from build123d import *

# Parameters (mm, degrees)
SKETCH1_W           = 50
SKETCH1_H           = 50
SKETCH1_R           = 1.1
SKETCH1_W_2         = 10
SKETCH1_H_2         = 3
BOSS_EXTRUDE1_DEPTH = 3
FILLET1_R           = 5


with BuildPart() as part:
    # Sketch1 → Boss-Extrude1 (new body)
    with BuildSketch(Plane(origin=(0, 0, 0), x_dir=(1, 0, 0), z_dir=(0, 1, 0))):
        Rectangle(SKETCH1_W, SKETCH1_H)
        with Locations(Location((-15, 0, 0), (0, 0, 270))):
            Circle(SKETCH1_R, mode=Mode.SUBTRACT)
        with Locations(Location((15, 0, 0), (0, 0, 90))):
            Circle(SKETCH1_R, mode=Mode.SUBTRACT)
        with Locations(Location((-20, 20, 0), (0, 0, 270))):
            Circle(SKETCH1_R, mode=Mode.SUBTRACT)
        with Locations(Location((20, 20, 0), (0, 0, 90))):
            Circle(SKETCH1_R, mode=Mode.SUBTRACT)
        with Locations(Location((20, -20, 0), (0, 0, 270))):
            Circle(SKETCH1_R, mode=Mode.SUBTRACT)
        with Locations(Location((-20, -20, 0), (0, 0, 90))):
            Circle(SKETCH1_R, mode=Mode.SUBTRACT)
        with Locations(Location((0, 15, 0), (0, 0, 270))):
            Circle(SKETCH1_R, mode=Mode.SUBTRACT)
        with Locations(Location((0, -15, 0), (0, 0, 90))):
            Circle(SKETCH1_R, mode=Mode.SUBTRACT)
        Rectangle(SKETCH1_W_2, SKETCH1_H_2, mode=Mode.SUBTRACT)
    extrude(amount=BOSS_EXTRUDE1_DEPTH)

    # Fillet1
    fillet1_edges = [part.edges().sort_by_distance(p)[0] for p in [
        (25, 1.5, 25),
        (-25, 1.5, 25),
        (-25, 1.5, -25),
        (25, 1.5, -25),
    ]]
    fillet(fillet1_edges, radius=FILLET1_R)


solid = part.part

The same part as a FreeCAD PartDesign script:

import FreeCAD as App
import Part
import Sketcher
from FreeCAD import Vector
Q = App.Units.Quantity


def edges_at(feature, points):
    """Names of the edges that pass closest to the given points."""
    edges = feature.Shape.Edges
    near = lambda p: min(range(len(edges)), key=lambda i: edges[i].distToShape(Part.Vertex(*p))[0])
    return sorted({f"Edge{near(p) + 1}" for p in points})

doc = App.newDocument("Part")
body = doc.addObject("PartDesign::Body", "Body")

# Sketch on XZ plane
sketch1 = doc.addObject("Sketcher::SketchObject", "Sketch")
body.addObject(sketch1)
sketch1.AttachmentSupport = (doc.XZ_Plane, [""])
sketch1.MapMode = "FlatFace"
sketch1.addGeometry([
    Part.LineSegment(Vector(-25, -25, 0), Vector(-25, 25, 0)),  # 0
    Part.LineSegment(Vector(-25, 25, 0), Vector(25, 25, 0)),  # 1
    Part.LineSegment(Vector(25, 25, 0), Vector(25, -25, 0)),  # 2
    Part.LineSegment(Vector(25, -25, 0), Vector(-25, -25, 0)),  # 3
    Part.Circle(Vector(-20, 20, 0), Vector(0, 0, 1), 1.1),  # 4
    Part.Circle(Vector(0, 15, 0), Vector(0, 0, 1), 1.1),  # 5
    Part.Circle(Vector(20, 20, 0), Vector(0, 0, 1), 1.1),  # 6
    Part.Circle(Vector(-15, 0, 0), Vector(0, 0, 1), 1.1),  # 7
    Part.Circle(Vector(-20, -20, 0), Vector(0, 0, 1), 1.1),  # 8
    Part.LineSegment(Vector(5, 1.5, 0), Vector(-5, 1.5, 0)),  # 9
    Part.LineSegment(Vector(-5, 1.5, 0), Vector(-5, -1.5, 0)),  # 10
    Part.LineSegment(Vector(-5, -1.5, 0), Vector(5, -1.5, 0)),  # 11
    Part.LineSegment(Vector(5, -1.5, 0), Vector(5, 1.5, 0)),  # 12
    Part.Circle(Vector(15, 0, 0), Vector(0, 0, 1), 1.1),  # 13
    Part.Circle(Vector(0, -15, 0), Vector(0, 0, 1), 1.1),  # 14
    Part.Circle(Vector(20, -20, 0), Vector(0, 0, 1), 1.1),  # 15
], False)
sketch1.addConstraint([
    Sketcher.Constraint("Coincident", 0, 2, 1, 1),
    Sketcher.Constraint("Coincident", 1, 2, 2, 1),
    Sketcher.Constraint("Coincident", 2, 2, 3, 1),
    Sketcher.Constraint("Coincident", 3, 2, 0, 1),
    Sketcher.Constraint("Coincident", 9, 2, 10, 1),
    Sketcher.Constraint("Coincident", 10, 2, 11, 1),
    Sketcher.Constraint("Coincident", 11, 2, 12, 1),
    Sketcher.Constraint("Coincident", 12, 2, 9, 1),
    Sketcher.Constraint("Vertical", 0),
    Sketcher.Constraint("Horizontal", 1),
    Sketcher.Constraint("Vertical", 2),
    Sketcher.Constraint("Horizontal", 3),
    Sketcher.Constraint("Horizontal", 9),
    Sketcher.Constraint("Vertical", 10),
    Sketcher.Constraint("Horizontal", 11),
    Sketcher.Constraint("Vertical", 12),
    Sketcher.Constraint("Equal", 4, 5),
    Sketcher.Constraint("Equal", 5, 6),
    Sketcher.Constraint("Equal", 6, 7),
    Sketcher.Constraint("Equal", 7, 8),
    Sketcher.Constraint("Equal", 8, 13),
    Sketcher.Constraint("Equal", 13, 14),
    Sketcher.Constraint("Equal", 14, 15),
    Sketcher.Constraint("Symmetric", 6, 3, 8, 3, -1, 1),
    Sketcher.Constraint("Symmetric", 7, 3, 13, 3, -1, 1),
    Sketcher.Constraint("Symmetric", 5, 3, 14, 3, -1, 1),
    Sketcher.Constraint("Symmetric", 4, 3, 15, 3, -1, 1),
    Sketcher.Constraint("Symmetric", 0, 2, 2, 2, -1, 1),
    Sketcher.Constraint("Symmetric", 9, 2, 11, 2, -1, 1),
    Sketcher.Constraint("Symmetric", 4, 3, 6, 3, -2),
    Sketcher.Constraint("PointOnObject", 5, 3, -2),
    Sketcher.Constraint("PointOnObject", 7, 3, -1),
    Sketcher.Constraint("Equal", 3, 0),
    Sketcher.Constraint("Diameter", 4, Q("2.2 mm")),
    Sketcher.Constraint("DistanceX", 1, 1, 1, 2, Q("50 mm")),
    Sketcher.Constraint("DistanceX", 9, 2, 9, 1, Q("10 mm")),
    Sketcher.Constraint("DistanceY", 10, 2, 10, 1, Q("3 mm")),
    Sketcher.Constraint("DistanceX", 4, 3, -1, 1, Q("20 mm")),
    Sketcher.Constraint("DistanceY", -1, 1, 4, 3, Q("20 mm")),
    Sketcher.Constraint("DistanceY", -1, 1, 5, 3, Q("15 mm")),
    Sketcher.Constraint("DistanceX", 7, 3, -1, 1, Q("15 mm")),
])
pad1 = doc.addObject("PartDesign::Pad", "Pad")
body.addObject(pad1)
pad1.Profile = sketch1
pad1.Length = 3
pad1.Reversed = True
doc.recompute()

fillet = doc.addObject("PartDesign::Fillet", "Fillet")
body.addObject(fillet)
fillet.Base = (pad1, edges_at(pad1, [
    (25, 1.5, 25),
    (-25, 1.5, 25),
    (-25, 1.5, -25),
    (25, 1.5, -25),
]))
fillet.Radius = 5

doc.recompute()
